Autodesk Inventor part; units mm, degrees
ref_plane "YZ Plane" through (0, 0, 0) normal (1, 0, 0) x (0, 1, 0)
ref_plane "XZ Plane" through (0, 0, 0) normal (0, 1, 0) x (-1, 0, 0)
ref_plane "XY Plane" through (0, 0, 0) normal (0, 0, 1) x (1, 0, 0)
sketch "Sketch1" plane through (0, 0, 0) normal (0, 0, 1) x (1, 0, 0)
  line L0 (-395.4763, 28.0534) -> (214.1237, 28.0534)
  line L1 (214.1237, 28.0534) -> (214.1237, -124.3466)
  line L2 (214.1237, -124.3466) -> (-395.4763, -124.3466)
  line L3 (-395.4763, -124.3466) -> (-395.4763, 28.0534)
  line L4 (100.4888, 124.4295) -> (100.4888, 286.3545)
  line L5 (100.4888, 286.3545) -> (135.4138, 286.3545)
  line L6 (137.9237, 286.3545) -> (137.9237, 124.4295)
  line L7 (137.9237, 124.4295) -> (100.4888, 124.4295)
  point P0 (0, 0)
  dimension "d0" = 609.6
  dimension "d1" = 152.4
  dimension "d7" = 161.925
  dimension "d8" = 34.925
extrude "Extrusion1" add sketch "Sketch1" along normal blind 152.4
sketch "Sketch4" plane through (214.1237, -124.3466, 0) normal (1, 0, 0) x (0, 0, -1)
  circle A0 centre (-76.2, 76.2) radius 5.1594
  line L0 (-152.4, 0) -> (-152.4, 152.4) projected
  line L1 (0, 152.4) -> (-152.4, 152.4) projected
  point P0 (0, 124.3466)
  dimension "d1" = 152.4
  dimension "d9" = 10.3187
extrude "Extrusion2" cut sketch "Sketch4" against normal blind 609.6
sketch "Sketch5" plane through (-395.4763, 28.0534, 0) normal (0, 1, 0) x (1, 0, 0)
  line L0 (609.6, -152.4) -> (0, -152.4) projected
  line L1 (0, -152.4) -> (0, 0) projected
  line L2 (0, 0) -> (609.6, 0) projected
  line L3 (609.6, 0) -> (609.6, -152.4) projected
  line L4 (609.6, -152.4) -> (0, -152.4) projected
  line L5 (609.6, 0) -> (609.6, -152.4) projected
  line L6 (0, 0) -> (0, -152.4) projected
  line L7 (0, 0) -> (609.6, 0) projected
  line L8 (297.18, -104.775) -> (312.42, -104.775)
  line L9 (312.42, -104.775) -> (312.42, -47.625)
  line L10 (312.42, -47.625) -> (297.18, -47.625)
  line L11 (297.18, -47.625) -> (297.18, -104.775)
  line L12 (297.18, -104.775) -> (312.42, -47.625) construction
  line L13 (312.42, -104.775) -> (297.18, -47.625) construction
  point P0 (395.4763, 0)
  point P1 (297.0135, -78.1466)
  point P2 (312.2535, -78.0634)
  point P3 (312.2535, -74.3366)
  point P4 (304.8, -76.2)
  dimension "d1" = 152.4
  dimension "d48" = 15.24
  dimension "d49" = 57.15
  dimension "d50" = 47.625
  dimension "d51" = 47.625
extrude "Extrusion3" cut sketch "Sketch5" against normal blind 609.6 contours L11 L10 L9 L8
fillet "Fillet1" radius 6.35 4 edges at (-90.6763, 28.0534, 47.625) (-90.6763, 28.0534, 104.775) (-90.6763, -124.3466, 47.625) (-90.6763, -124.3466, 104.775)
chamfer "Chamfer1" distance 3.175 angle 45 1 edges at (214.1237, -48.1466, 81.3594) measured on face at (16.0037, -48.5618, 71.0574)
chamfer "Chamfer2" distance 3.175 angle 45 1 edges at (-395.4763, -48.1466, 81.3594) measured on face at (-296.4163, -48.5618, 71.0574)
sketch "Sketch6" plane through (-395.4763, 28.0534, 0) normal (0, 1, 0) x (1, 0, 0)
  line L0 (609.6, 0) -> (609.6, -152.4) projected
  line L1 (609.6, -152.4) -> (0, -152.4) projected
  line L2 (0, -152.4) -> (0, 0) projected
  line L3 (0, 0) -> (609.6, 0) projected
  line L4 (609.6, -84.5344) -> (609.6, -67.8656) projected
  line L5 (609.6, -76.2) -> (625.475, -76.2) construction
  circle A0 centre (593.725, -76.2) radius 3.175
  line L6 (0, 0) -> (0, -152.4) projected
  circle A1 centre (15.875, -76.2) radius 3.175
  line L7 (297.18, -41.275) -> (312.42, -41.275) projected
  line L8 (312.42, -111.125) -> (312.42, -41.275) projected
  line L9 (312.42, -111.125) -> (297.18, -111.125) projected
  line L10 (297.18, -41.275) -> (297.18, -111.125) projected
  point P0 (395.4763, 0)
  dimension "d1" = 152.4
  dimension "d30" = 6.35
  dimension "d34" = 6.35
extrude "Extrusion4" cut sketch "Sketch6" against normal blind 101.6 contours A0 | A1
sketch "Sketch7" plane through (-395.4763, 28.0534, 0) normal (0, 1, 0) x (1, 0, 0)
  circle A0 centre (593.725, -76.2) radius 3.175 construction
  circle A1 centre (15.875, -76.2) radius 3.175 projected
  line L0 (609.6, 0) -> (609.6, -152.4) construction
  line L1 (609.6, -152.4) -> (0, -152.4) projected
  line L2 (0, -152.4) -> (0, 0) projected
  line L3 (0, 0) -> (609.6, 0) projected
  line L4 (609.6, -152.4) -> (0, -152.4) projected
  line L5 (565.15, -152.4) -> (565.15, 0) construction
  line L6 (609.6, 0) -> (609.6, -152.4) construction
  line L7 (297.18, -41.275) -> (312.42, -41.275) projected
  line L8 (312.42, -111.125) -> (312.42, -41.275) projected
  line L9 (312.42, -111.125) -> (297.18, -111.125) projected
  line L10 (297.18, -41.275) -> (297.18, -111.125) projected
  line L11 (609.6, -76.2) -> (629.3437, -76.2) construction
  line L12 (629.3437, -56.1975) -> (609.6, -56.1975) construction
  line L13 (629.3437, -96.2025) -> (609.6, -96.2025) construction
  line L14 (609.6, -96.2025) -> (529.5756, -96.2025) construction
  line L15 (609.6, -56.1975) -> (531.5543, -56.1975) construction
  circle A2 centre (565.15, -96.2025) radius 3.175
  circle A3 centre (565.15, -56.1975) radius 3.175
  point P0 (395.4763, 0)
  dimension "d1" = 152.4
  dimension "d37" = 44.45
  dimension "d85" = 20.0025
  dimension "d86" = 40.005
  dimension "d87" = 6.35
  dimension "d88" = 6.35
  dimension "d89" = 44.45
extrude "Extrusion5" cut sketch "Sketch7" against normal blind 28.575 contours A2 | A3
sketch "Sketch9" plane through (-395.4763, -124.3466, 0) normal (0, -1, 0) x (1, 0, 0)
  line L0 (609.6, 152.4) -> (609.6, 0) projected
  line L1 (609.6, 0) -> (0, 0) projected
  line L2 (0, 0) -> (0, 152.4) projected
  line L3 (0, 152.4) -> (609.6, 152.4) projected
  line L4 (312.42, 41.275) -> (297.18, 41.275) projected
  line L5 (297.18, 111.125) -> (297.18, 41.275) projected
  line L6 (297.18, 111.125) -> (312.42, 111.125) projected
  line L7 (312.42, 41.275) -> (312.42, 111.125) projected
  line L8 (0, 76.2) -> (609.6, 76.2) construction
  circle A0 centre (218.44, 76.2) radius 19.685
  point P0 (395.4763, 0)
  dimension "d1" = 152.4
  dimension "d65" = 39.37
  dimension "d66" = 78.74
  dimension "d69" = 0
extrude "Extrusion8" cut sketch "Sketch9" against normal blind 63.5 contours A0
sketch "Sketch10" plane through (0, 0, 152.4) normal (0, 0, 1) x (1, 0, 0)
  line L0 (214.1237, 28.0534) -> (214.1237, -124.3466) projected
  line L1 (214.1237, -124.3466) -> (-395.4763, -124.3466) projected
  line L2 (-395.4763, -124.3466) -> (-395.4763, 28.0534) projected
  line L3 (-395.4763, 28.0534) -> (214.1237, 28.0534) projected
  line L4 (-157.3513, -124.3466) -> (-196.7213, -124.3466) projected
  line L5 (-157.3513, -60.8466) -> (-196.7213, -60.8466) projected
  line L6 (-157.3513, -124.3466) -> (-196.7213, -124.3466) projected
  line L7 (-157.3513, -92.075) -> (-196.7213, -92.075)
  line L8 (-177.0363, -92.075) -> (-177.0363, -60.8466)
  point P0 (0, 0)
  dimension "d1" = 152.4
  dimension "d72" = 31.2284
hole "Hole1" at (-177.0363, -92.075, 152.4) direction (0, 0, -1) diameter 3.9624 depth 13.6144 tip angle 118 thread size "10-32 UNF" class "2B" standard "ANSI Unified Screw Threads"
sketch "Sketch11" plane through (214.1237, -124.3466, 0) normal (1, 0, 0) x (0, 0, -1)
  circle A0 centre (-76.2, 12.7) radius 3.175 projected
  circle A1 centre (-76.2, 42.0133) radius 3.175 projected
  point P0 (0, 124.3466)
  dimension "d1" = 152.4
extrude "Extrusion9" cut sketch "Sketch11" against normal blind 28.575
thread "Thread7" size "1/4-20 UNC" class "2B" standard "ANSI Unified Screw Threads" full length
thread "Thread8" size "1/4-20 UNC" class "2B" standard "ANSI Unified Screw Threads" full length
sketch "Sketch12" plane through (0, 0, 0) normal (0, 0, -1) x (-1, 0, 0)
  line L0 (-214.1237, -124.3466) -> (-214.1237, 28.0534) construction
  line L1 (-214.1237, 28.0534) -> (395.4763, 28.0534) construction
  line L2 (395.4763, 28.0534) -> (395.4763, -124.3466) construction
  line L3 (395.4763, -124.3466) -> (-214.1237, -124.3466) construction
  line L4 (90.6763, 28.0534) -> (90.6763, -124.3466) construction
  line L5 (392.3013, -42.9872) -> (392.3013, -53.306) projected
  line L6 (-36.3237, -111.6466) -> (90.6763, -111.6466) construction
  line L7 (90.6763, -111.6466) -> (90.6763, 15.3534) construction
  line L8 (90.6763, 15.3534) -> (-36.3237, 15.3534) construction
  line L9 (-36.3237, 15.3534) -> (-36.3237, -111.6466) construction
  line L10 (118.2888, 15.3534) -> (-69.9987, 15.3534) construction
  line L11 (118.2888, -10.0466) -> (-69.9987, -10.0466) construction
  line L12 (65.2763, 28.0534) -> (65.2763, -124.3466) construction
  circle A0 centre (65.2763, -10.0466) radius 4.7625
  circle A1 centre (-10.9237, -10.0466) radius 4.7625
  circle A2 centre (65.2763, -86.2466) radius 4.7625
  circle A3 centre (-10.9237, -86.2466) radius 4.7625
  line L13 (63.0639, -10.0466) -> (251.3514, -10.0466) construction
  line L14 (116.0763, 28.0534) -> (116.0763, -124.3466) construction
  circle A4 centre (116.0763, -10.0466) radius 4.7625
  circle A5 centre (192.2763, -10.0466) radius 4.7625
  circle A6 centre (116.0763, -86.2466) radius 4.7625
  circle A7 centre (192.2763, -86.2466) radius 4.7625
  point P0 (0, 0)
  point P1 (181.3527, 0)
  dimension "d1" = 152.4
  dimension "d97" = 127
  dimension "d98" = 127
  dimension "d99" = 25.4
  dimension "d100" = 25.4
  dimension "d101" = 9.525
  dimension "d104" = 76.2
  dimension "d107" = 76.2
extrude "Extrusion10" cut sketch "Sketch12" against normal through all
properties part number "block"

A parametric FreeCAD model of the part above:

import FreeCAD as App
import Part
import Sketcher
Q = App.Units.Quantity


def edges_at(feature, points):
    """Names of the edges that pass closest to the given points."""
    edges = feature.Shape.Edges
    near = lambda p: min(range(len(edges)), key=lambda i: edges[i].distToShape(Part.Vertex(*p))[0])
    return sorted({f"Edge{near(p) + 1}" for p in points})


def add_polygon(sketch, points):
    """Adds a closed chain of lines whose ends are joined by coincident constraints."""
    first, n = sketch.GeometryCount, len(points)
    for a, b in zip(points, points[1:] + points[:1]):
        sketch.addGeometry(Part.LineSegment(App.Vector(*a, 0), App.Vector(*b, 0)), False)
    for i in range(n):
        sketch.addConstraint(Sketcher.Constraint("Coincident", first + i, 2, first + (i + 1) % n, 1))

doc = App.newDocument("Part")
params = doc.addObject("Spreadsheet::Sheet", "Params")
for row, (alias, value) in enumerate([
    ("sketch1_width", "24 in"),
    ("sketch1_height", "6 in"),
    ("pad1_length", "6 in"),
    ("sketch2_diameter", "0.406252 in"),
    ("pocket1_length", "24 in"),
    ("sketch3_width", "0.6 in"),
    ("sketch3_height", "2.25 in"),
    ("pocket2_length", "24 in"),
    ("fillet_radius", "0.25 in"),
    ("chamfer_size", "0.125 in"),
    ("chamfer2_size", "0.125 in"),
    ("sketch4_diameter", "0.25 in"),
    ("pocket3_length", "4 in"),
    ("sketch5_diameter", "0.25 in"),
    ("pocket4_length", "1.125 in"),
    ("sketch6_diameter", "1.55 in"),
    ("pocket5_length", "2.5 in"),
    ("sketch7_diameter", "0.156 in"),
    ("hole_diameter", "0.156 in"),
    ("hole_depth", "0.536 in"),
    ("sketch8_diameter", "0.25 in"),
    ("pocket6_length", "1.125 in"),
    ("sketch9_diameter", "0.375 in"),
], start=1):
    params.set(f"A{row}", alias)
    params.set(f"B{row}", "=" + value)
    params.setAlias(f"B{row}", alias)

body = doc.addObject("PartDesign::Body", "Body")

sketch1 = doc.addObject("Sketcher::SketchObject", "Sketch")
body.addObject(sketch1)
sketch1.AttachmentSupport = (doc.XY_Plane, [""])
sketch1.MapMode = "FlatFace"
add_polygon(sketch1, [(214.1237, 28.0534), (-395.4763, 28.0534), (-395.4763, -124.3466), (214.1237, -124.3466)])
sketch1.addConstraint([
    Sketcher.Constraint("Horizontal", 0),
    Sketcher.Constraint("Vertical", 1),
    Sketcher.Constraint("Horizontal", 2),
    Sketcher.Constraint("Vertical", 3),
    Sketcher.Constraint("DistanceX", 0, 2, 0, 1, Q("24 in")),
    Sketcher.Constraint("DistanceY", 1, 2, 1, 1, Q("6 in")),
    Sketcher.Constraint("DistanceX", 0, 2, -1, 1, 395.4763),
    Sketcher.Constraint("DistanceY", -1, 1, 0, 2, 28.0534),
])
sketch1.setExpression("Constraints[8]", "Params.sketch1_width")
sketch1.setExpression("Constraints[9]", "Params.sketch1_height")
pad1 = doc.addObject("PartDesign::Pad", "Pad")
body.addObject(pad1)
pad1.Profile = sketch1
pad1.setExpression("Length", "Params.pad1_length")

sketch2 = doc.addObject("Sketcher::SketchObject", "Sketch001")
body.addObject(sketch2)
sketch2.AttachmentSupport = (doc.YZ_Plane, [""])
sketch2.MapMode = "FlatFace"
sketch2.AttachmentOffset = App.Placement(App.Vector(0, 0, 214.1237), App.Rotation())
sketch2.addGeometry(Part.Circle(App.Vector(-48.1466, 76.2, 0), App.Vector(0, 0, 1), 5.1594), False)
sketch2.addConstraint([
    Sketcher.Constraint("Diameter", 0, Q("0.406252 in")),
    Sketcher.Constraint("DistanceY", -1, 1, 0, 3, Q("3 in")),
    Sketcher.Constraint("DistanceX", 0, 3, -1, 1, 48.1466),
])
sketch2.setExpression("Constraints[0]", "Params.sketch2_diameter")
pocket1 = doc.addObject("PartDesign::Pocket", "Pocket")
body.addObject(pocket1)
pocket1.Profile = sketch2
pocket1.setExpression("Length", "Params.pocket1_length")

sketch3 = doc.addObject("Sketcher::SketchObject", "Sketch002")
body.addObject(sketch3)
sketch3.AttachmentSupport = (doc.XZ_Plane, [""])
sketch3.MapMode = "FlatFace"
sketch3.AttachmentOffset = App.Placement(App.Vector(0, 0, -28.0534), App.Rotation())
add_polygon(sketch3, [(-98.2963, 47.625), (-98.2963, 104.775), (-83.0563, 104.775), (-83.0563, 47.625)])
sketch3.addConstraint([
    Sketcher.Constraint("Vertical", 0),
    Sketcher.Constraint("Horizontal", 1),
    Sketcher.Constraint("Vertical", 2),
    Sketcher.Constraint("Horizontal", 3),
    Sketcher.Constraint("DistanceX", 1, 1, 1, 2, Q("0.6 in")),
    Sketcher.Constraint("DistanceY", 0, 1, 0, 2, Q("2.25 in")),
    Sketcher.Constraint("DistanceY", -1, 1, 2, 2, Q("1.875 in")),
    Sketcher.Constraint("DistanceX", 0, 2, -1, 1, 98.2963),
])
sketch3.setExpression("Constraints[8]", "Params.sketch3_width")
sketch3.setExpression("Constraints[9]", "Params.sketch3_height")
pocket2 = doc.addObject("PartDesign::Pocket", "Pocket001")
body.addObject(pocket2)
pocket2.Profile = sketch3
pocket2.setExpression("Length", "Params.pocket2_length")
pocket2.Reversed = True
doc.recompute()

fillet = doc.addObject("PartDesign::Fillet", "Fillet")
body.addObject(fillet)
fillet.Base = (pocket2, edges_at(pocket2, [
    (-90.676, 28.053, 47.625),
    (-90.676, 28.053, 104.775),
    (-90.676, -124.347, 47.625),
    (-90.676, -124.347, 104.775),
]))
fillet.setExpression("Radius", "Params.fillet_radius")
doc.recompute()

chamfer = doc.addObject("PartDesign::Chamfer", "Chamfer")
body.addObject(chamfer)
chamfer.Base = (fillet, edges_at(fillet, [(214.124, -48.147, 81.359)]))
chamfer.setExpression("Size", "Params.chamfer_size")
doc.recompute()

chamfer2 = doc.addObject("PartDesign::Chamfer", "Chamfer001")
body.addObject(chamfer2)
chamfer2.Base = (chamfer, edges_at(chamfer, [(-395.476, -48.147, 81.359)]))
chamfer2.setExpression("Size", "Params.chamfer2_size")

sketch4 = doc.addObject("Sketcher::SketchObject", "Sketch003")
body.addObject(sketch4)
sketch4.AttachmentSupport = (doc.XZ_Plane, [""])
sketch4.MapMode = "FlatFace"
sketch4.AttachmentOffset = App.Placement(App.Vector(0, 0, -28.0534), App.Rotation())
sketch4.addGeometry([
    Part.Circle(App.Vector(198.2487, 76.2, 0), App.Vector(0, 0, 1), 3.175),
    Part.Circle(App.Vector(-379.6013, 76.2, 0), App.Vector(0, 0, 1), 3.175),
], False)
sketch4.addConstraint([
    Sketcher.Constraint("Equal", 0, 1),
    Sketcher.Constraint("Horizontal", 0, 3, 1, 3),
    Sketcher.Constraint("Diameter", 0, Q("0.25 in")),
    Sketcher.Constraint("DistanceY", -1, 1, 0, 3, Q("3 in")),
    Sketcher.Constraint("DistanceX", 1, 3, 0, 3, Q("22.75 in")),
    Sketcher.Constraint("DistanceX", -1, 1, 0, 3, 198.2487),
])
sketch4.setExpression("Constraints[2]", "Params.sketch4_diameter")
pocket3 = doc.addObject("PartDesign::Pocket", "Pocket002")
body.addObject(pocket3)
pocket3.Profile = sketch4
pocket3.setExpression("Length", "Params.pocket3_length")
pocket3.Reversed = True

sketch5 = doc.addObject("Sketcher::SketchObject", "Sketch004")
body.addObject(sketch5)
sketch5.AttachmentSupport = (doc.XZ_Plane, [""])
sketch5.MapMode = "FlatFace"
sketch5.AttachmentOffset = App.Placement(App.Vector(0, 0, -28.0534), App.Rotation())
sketch5.addGeometry([
    Part.Circle(App.Vector(169.6737, 96.2025, 0), App.Vector(0, 0, 1), 3.175),
    Part.Circle(App.Vector(169.6737, 56.1975, 0), App.Vector(0, 0, 1), 3.175),
], False)
sketch5.addConstraint([
    Sketcher.Constraint("Equal", 0, 1),
    Sketcher.Constraint("Vertical", 0, 3, 1, 3),
    Sketcher.Constraint("Diameter", 0, Q("0.25 in")),
    Sketcher.Constraint("DistanceY", 1, 3, 0, 3, Q("1.575 in")),
    Sketcher.Constraint("DistanceY", -1, 1, 0, 3, Q("3.7875 in")),
    Sketcher.Constraint("DistanceX", -1, 1, 0, 3, 169.6737),
])
sketch5.setExpression("Constraints[2]", "Params.sketch5_diameter")
pocket4 = doc.addObject("PartDesign::Pocket", "Pocket003")
body.addObject(pocket4)
pocket4.Profile = sketch5
pocket4.setExpression("Length", "Params.pocket4_length")
pocket4.Reversed = True

sketch6 = doc.addObject("Sketcher::SketchObject", "Sketch005")
body.addObject(sketch6)
sketch6.AttachmentSupport = (doc.XZ_Plane, [""])
sketch6.MapMode = "FlatFace"
sketch6.AttachmentOffset = App.Placement(App.Vector(0, 0, 124.3466), App.Rotation())
sketch6.addGeometry(Part.Circle(App.Vector(-177.0363, 76.2, 0), App.Vector(0, 0, 1), 19.685), False)
sketch6.addConstraint([
    Sketcher.Constraint("Diameter", 0, Q("1.55 in")),
    Sketcher.Constraint("DistanceY", -1, 1, 0, 3, Q("3 in")),
    Sketcher.Constraint("DistanceX", 0, 3, -1, 1, 177.0363),
])
sketch6.setExpression("Constraints[0]", "Params.sketch6_diameter")
pocket5 = doc.addObject("PartDesign::Pocket", "Pocket004")
body.addObject(pocket5)
pocket5.Profile = sketch6
pocket5.setExpression("Length", "Params.pocket5_length")

sketch7 = doc.addObject("Sketcher::SketchObject", "Sketch006")
body.addObject(sketch7)
sketch7.AttachmentSupport = (doc.XY_Plane, [""])
sketch7.MapMode = "FlatFace"
sketch7.AttachmentOffset = App.Placement(App.Vector(0, 0, 6 * 25.4), App.Rotation())
sketch7.addGeometry(Part.Circle(App.Vector(-177.0363, -92.075, 0), App.Vector(0, 0, 1), 1.9812), False)
sketch7.addConstraint([
    Sketcher.Constraint("Diameter", 0, Q("0.156 in")),
    Sketcher.Constraint("DistanceY", 0, 3, -1, 1, Q("3.625 in")),
    Sketcher.Constraint("DistanceX", 0, 3, -1, 1, 177.0363),
])
sketch7.setExpression("Constraints[0]", "Params.sketch7_diameter")
doc.recompute()
hole = doc.addObject("PartDesign::Hole", "Hole")
body.addObject(hole)
hole.Profile = sketch7
hole.ThreadType = "None"
hole.setExpression("Diameter", "Params.hole_diameter")
hole.DepthType = "Dimension"
hole.setExpression("Depth", "Params.hole_depth")
hole.DrillPoint = "Angled"
hole.DrillPointAngle = 118

sketch8 = doc.addObject("Sketcher::SketchObject", "Sketch007")
body.addObject(sketch8)
sketch8.AttachmentSupport = (doc.YZ_Plane, [""])
sketch8.MapMode = "FlatFace"
sketch8.AttachmentOffset = App.Placement(App.Vector(0, 0, 214.1237), App.Rotation())
sketch8.addGeometry([
    Part.Circle(App.Vector(-111.6466, 76.2, 0), App.Vector(0, 0, 1), 3.175),
    Part.Circle(App.Vector(-82.3333, 76.2, 0), App.Vector(0, 0, 1), 3.175),
], False)
sketch8.addConstraint([
    Sketcher.Constraint("Equal", 0, 1),
    Sketcher.Constraint("Horizontal", 0, 3, 1, 3),
    Sketcher.Constraint("Diameter", 0, Q("0.25 in")),
    Sketcher.Constraint("DistanceY", -1, 1, 0, 3, Q("3 in")),
    Sketcher.Constraint("DistanceX", 0, 3, -1, 1, 111.6466),
    Sketcher.Constraint("DistanceX", 1, 3, -1, 1, 82.3333),
])
sketch8.setExpression("Constraints[2]", "Params.sketch8_diameter")
pocket6 = doc.addObject("PartDesign::Pocket", "Pocket005")
body.addObject(pocket6)
pocket6.Profile = sketch8
pocket6.setExpression("Length", "Params.pocket6_length")

sketch9 = doc.addObject("Sketcher::SketchObject", "Sketch008")
body.addObject(sketch9)
sketch9.AttachmentSupport = (doc.XY_Plane, [""])
sketch9.MapMode = "FlatFace"
sketch9.addGeometry([
    Part.Circle(App.Vector(-65.2763, -10.0466, 0), App.Vector(0, 0, 1), 4.7625),
    Part.Circle(App.Vector(10.9237, -10.0466, 0), App.Vector(0, 0, 1), 4.7625),
    Part.Circle(App.Vector(-65.2763, -86.2466, 0), App.Vector(0, 0, 1), 4.7625),
    Part.Circle(App.Vector(10.9237, -86.2466, 0), App.Vector(0, 0, 1), 4.7625),
    Part.Circle(App.Vector(-116.0763, -10.0466, 0), App.Vector(0, 0, 1), 4.7625),
    Part.Circle(App.Vector(-192.2763, -10.0466, 0), App.Vector(0, 0, 1), 4.7625),
    Part.Circle(App.Vector(-116.0763, -86.2466, 0), App.Vector(0, 0, 1), 4.7625),
    Part.Circle(App.Vector(-192.2763, -86.2466, 0), App.Vector(0, 0, 1), 4.7625),
], False)
sketch9.addConstraint([
    Sketcher.Constraint("Equal", 0, 1),
    Sketcher.Constraint("Equal", 1, 2),
    Sketcher.Constraint("Equal", 2, 3),
    Sketcher.Constraint("Equal", 3, 4),
    Sketcher.Constraint("Equal", 4, 5),
    Sketcher.Constraint("Equal", 5, 6),
    Sketcher.Constraint("Equal", 6, 7),
    Sketcher.Constraint("Horizontal", 0, 3, 1, 3),
    Sketcher.Constraint("Horizontal", 2, 3, 3, 3),
    Sketcher.Constraint("Horizontal", 1, 3, 4, 3),
    Sketcher.Constraint("Horizontal", 4, 3, 5, 3),
    Sketcher.Constraint("Horizontal", 3, 3, 6, 3),
    Sketcher.Constraint("Horizontal", 6, 3, 7, 3),
    Sketcher.Constraint("Vertical", 0, 3, 2, 3),
    Sketcher.Constraint("Vertical", 1, 3, 3, 3),
    Sketcher.Constraint("Vertical", 4, 3, 6, 3),
    Sketcher.Constraint("Vertical", 5, 3, 7, 3),
    Sketcher.Constraint("Diameter", 0, Q("0.375 in")),
    Sketcher.Constraint("DistanceX", 0, 3, 1, 3, Q("3 in")),
    Sketcher.Constraint("DistanceY", 2, 3, 0, 3, Q("3 in")),
    Sketcher.Constraint("DistanceX", 4, 3, 1, 3, Q("5 in")),
    Sketcher.Constraint("DistanceX", 5, 3, 4, 3, Q("3 in")),
    Sketcher.Constraint("DistanceX", 0, 3, -1, 1, 65.2763),
    Sketcher.Constraint("DistanceY", 0, 3, -1, 1, 10.0466),
])
sketch9.setExpression("Constraints[17]", "Params.sketch9_diameter")
pocket7 = doc.addObject("PartDesign::Pocket", "Pocket006")
body.addObject(pocket7)
pocket7.Profile = sketch9
pocket7.Type = "ThroughAll"
pocket7.Reversed = True

doc.recompute()
